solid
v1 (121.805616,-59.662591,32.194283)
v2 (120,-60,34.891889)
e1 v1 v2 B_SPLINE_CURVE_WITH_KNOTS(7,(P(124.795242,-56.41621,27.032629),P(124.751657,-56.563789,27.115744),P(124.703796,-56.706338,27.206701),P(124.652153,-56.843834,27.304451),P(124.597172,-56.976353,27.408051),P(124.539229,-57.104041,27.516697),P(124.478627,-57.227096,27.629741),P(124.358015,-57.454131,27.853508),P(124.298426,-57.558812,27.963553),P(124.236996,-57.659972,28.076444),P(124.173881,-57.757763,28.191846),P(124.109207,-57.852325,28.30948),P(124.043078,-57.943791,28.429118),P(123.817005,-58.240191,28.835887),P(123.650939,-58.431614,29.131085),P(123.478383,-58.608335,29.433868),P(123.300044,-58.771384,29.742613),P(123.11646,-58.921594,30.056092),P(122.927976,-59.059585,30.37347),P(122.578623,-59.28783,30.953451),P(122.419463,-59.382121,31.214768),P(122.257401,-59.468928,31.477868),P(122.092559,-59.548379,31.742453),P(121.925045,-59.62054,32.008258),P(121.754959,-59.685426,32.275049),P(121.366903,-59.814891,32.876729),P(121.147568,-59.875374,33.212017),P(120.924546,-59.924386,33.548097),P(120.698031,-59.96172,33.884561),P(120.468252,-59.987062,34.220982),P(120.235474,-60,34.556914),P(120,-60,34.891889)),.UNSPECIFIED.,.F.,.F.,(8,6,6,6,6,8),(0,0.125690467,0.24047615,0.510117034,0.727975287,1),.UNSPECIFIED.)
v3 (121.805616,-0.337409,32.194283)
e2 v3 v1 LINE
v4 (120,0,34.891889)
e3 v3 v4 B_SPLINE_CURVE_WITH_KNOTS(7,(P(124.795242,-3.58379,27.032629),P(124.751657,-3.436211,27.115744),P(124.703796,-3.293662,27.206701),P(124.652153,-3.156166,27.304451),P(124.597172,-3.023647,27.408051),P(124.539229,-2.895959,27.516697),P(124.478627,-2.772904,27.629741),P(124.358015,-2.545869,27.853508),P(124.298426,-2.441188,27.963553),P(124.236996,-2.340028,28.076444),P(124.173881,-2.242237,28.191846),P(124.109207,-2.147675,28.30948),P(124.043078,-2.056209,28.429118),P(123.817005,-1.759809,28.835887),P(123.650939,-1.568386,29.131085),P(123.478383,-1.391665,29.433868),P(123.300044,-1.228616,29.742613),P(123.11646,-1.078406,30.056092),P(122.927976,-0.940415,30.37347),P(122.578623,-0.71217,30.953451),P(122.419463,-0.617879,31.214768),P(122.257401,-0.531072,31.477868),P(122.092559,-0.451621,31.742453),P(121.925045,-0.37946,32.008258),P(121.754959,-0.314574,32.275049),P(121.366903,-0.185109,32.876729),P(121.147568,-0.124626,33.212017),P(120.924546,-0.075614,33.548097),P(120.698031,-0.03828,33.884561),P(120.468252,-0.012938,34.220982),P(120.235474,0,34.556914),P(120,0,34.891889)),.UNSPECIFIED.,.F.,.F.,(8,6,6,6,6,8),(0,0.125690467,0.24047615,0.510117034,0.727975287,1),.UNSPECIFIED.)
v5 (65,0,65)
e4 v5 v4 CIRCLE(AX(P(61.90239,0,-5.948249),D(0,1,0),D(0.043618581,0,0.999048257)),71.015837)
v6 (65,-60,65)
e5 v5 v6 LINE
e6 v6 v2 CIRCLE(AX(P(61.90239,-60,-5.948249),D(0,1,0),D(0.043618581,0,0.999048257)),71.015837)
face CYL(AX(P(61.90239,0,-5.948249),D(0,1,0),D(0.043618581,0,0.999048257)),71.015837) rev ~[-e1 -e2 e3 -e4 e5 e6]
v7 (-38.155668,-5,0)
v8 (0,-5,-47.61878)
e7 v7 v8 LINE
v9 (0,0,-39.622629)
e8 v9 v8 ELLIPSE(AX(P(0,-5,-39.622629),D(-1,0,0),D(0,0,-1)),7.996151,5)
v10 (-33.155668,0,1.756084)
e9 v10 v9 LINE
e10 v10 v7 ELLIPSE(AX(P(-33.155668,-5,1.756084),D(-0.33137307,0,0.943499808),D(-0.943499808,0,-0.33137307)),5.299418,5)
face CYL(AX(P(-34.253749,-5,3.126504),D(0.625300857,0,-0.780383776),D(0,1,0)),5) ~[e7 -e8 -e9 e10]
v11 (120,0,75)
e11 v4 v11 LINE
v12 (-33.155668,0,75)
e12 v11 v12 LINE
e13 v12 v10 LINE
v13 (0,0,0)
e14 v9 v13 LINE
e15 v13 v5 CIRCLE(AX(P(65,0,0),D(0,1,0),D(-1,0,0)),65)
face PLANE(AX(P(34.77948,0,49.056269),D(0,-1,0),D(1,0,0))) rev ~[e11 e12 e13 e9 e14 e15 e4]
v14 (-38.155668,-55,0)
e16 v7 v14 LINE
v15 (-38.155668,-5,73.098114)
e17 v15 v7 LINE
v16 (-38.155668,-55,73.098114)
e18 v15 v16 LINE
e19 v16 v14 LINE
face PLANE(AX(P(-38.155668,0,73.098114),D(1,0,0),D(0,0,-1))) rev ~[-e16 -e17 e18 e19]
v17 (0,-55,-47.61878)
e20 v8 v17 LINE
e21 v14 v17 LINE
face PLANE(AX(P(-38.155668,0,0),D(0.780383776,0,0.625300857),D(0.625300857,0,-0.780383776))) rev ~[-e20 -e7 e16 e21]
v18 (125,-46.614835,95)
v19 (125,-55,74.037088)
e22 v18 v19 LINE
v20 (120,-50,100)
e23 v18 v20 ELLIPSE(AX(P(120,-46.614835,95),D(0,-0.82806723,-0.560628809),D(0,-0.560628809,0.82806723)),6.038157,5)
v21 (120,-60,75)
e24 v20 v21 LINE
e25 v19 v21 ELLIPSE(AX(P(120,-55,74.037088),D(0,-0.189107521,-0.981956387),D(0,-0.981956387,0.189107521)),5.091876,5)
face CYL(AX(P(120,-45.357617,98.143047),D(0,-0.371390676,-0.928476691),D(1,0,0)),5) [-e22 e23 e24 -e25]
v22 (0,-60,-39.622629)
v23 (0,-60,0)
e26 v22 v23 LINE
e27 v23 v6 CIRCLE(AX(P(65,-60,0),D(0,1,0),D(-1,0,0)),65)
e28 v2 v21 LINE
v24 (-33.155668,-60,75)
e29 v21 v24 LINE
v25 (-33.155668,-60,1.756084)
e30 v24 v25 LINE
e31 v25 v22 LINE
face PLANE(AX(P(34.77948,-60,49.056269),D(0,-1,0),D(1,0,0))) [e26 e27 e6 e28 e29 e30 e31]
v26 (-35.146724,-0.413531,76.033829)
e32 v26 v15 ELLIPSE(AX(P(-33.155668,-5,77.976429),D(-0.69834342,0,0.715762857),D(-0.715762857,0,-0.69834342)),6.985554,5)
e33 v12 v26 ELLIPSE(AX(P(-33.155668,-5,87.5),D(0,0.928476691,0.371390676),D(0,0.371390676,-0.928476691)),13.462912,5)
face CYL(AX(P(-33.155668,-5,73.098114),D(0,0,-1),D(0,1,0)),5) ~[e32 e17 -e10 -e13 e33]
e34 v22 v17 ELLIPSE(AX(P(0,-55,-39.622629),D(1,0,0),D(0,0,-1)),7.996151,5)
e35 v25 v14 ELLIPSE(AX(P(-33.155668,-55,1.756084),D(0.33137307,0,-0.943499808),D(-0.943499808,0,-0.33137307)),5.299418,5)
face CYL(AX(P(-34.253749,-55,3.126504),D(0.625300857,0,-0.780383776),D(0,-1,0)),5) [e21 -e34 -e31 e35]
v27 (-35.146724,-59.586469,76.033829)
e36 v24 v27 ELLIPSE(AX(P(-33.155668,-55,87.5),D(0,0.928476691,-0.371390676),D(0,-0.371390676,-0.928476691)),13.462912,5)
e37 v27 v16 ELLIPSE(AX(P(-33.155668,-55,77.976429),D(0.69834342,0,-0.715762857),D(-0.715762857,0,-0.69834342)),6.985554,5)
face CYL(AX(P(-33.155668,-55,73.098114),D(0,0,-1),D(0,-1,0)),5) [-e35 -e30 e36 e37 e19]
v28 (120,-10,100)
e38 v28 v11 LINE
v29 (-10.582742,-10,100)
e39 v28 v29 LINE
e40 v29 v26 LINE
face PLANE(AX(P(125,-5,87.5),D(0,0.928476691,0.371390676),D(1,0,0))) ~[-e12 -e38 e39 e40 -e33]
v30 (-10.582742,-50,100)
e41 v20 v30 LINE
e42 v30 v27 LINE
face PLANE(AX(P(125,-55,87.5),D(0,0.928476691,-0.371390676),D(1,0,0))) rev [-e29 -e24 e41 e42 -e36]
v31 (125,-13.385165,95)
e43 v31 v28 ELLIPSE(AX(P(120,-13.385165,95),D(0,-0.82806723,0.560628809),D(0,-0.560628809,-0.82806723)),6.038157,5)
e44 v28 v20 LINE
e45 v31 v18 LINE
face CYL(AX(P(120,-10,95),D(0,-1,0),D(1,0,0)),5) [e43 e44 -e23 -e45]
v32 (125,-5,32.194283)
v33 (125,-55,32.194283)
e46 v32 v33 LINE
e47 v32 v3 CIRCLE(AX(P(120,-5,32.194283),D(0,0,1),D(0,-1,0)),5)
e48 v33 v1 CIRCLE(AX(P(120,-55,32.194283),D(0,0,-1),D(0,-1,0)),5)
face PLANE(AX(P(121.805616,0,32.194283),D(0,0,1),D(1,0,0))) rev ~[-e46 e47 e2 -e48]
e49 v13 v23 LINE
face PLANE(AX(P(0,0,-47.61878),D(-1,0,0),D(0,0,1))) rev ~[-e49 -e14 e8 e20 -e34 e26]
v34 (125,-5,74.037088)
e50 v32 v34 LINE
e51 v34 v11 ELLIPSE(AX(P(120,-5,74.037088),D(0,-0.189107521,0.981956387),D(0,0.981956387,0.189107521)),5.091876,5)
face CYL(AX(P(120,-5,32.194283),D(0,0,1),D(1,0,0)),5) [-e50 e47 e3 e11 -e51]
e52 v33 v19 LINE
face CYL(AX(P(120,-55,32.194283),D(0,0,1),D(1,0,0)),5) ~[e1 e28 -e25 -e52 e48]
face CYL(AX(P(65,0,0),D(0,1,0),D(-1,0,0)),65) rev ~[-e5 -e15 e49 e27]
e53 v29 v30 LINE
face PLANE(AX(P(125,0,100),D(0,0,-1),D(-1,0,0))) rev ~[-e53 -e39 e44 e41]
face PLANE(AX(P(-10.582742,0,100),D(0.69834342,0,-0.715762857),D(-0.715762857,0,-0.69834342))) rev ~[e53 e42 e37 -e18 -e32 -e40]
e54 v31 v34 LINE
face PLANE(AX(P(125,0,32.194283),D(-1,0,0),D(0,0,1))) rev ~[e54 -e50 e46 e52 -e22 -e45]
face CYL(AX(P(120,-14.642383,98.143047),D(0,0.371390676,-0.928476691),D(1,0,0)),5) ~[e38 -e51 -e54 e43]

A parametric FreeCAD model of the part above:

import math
import FreeCAD as App
import Part
import Sketcher


def edges_at(feature, points):
    """Names of the edges that pass closest to the given points."""
    edges = feature.Shape.Edges
    near = lambda p: min(range(len(edges)), key=lambda i: edges[i].distToShape(Part.Vertex(*p))[0])
    return sorted({f"Edge{near(p) + 1}" for p in points})

doc = App.newDocument("Part")
params = doc.addObject("Spreadsheet::Sheet", "Params")
for row, (alias, value) in enumerate([
    ("sketch1_radius", "65 mm"),
    ("pad1_length", "60 mm"),
    ("chamfer_size", "10 mm"),
    ("chamfer_size2", "25 mm"),
    ("fillet_radius", "5 mm"),
], start=1):
    params.set(f"A{row}", alias)
    params.set(f"B{row}", "=" + value)
    params.setAlias(f"B{row}", alias)

body = doc.addObject("PartDesign::Body", "Body")

# Sketch on XZ plane
sketch1 = body.newObject("Sketcher::SketchObject", "Sketch")
sketch1.AttachmentSupport = (doc.getObject("XZ_Plane"), [""])
sketch1.MapMode = "FlatFace"
sketch1.addGeometry(Part.LineSegment(App.Vector(125, 32.2, 0), App.Vector(125, 100, 0)), False)
sketch1.addGeometry(Part.LineSegment(App.Vector(125, 100, 0), App.Vector(-10.6, 100, 0)), False)
sketch1.addGeometry(Part.LineSegment(App.Vector(-10.6, 100, 0), App.Vector(-38.2, 73.1, 0)), False)
sketch1.addGeometry(Part.LineSegment(App.Vector(-38.2, 73.1, 0), App.Vector(-38.2, 0, 0)), False)
sketch1.addGeometry(Part.LineSegment(App.Vector(-38.2, 0, 0), App.Vector(0, -47.6, 0)), False)
sketch1.addGeometry(Part.LineSegment(App.Vector(0, -47.6, 0), App.Vector(0, 0, 0)), False)
sketch1.addGeometry(Part.ArcOfCircle(Part.Circle(App.Vector(65, 0, 0), App.Vector(0, 0, 1), 65), math.radians(90), math.radians(180)), False)
sketch1.addGeometry(Part.ArcOfCircle(Part.Circle(App.Vector(61.9, -5.9, 0), App.Vector(0, 0, 1), 71), math.radians(32), math.radians(88)), False)
sketch1.addGeometry(Part.LineSegment(App.Vector(121.8, 32.2, 0), App.Vector(125, 32.2, 0)), False)
sketch1.addConstraint(Sketcher.Constraint("Coincident", 0, 2, 1, 1))
sketch1.addConstraint(Sketcher.Constraint("Coincident", 1, 2, 2, 1))
sketch1.addConstraint(Sketcher.Constraint("Coincident", 2, 2, 3, 1))
sketch1.addConstraint(Sketcher.Constraint("Coincident", 3, 2, 4, 1))
sketch1.addConstraint(Sketcher.Constraint("Coincident", 4, 2, 5, 1))
sketch1.addConstraint(Sketcher.Constraint("Tangent", 5, 2, 6, 2))
sketch1.addConstraint(Sketcher.Constraint("Coincident", 6, 1, 7, 2))
sketch1.addConstraint(Sketcher.Constraint("Coincident", 7, 1, 8, 1))
sketch1.addConstraint(Sketcher.Constraint("Coincident", 8, 2, 0, 1))
sketch1.addConstraint(Sketcher.Constraint("Vertical", 0))
sketch1.addConstraint(Sketcher.Constraint("Horizontal", 1))
sketch1.addConstraint(Sketcher.Constraint("Vertical", 3))
sketch1.addConstraint(Sketcher.Constraint("Vertical", 5))
sketch1.addConstraint(Sketcher.Constraint("Horizontal", 8))
sketch1.addConstraint(Sketcher.Constraint("Coincident", 5, 2, -1, 1))
sketch1.addConstraint(Sketcher.Constraint("PointOnObject", 3, 2, -1))
sketch1.addConstraint(Sketcher.Constraint("Radius", 6, 65.0))
sketch1.addConstraint(Sketcher.Constraint("DistanceX", -1, 1, 0, 2, 125.0))
sketch1.addConstraint(Sketcher.Constraint("DistanceY", -1, 1, 0, 2, 100.0))
sketch1.addConstraint(Sketcher.Constraint("DistanceX", -1, 1, 6, 1, 65.0))
sketch1.addConstraint(Sketcher.Constraint("Radius", 7, 71.015837))
sketch1.addConstraint(Sketcher.Constraint("DistanceY", 5, 1, 5, 2, 47.61878))
sketch1.addConstraint(Sketcher.Constraint("Distance", 2, 38.522431))
sketch1.addConstraint(Sketcher.Constraint("DistanceX", 1, 2, 1, 1, 135.582742))
sketch1.addConstraint(Sketcher.Constraint("DistanceX", 8, 1, 8, 2, 3.194384))
sketch1.addConstraint(Sketcher.Constraint("DistanceY", 0, 1, 0, 2, 67.805717))
sketch1.addConstraint(Sketcher.Constraint("DistanceY", 3, 2, 3, 1, 73.098114))
sketch1.setExpression("Constraints[16]", "Params.sketch1_radius")
pad1 = body.newObject("PartDesign::Pad", "Pad")
pad1.Profile = sketch1
pad1.setExpression("Length", "Params.pad1_length")
doc.recompute()

chamfer = body.newObject("PartDesign::Chamfer", "Chamfer")
chamfer.Base = (pad1, edges_at(pad1, [(57.209, -60, 100), (57.209, 0, 100)]))
chamfer.ChamferType = "Two distances"
chamfer.setExpression("Size", "Params.chamfer_size")
chamfer.setExpression("Size2", "Params.chamfer_size2")
doc.recompute()

fillet = body.newObject("PartDesign::Fillet", "Fillet")
fillet.Base = (chamfer, edges_at(chamfer, [
    (125, -30, 100),
    (125, -60, 53.597),
    (125, 0, 53.597),
    (-38.156, -60, 36.549),
    (-38.156, 0, 36.549),
    (-19.078, 0, -23.809),
    (-19.078, -60, -23.809),
    (125, -5, 87.5),
    (125, -55, 87.5),
]))
fillet.setExpression("Radius", "Params.fillet_radius")

doc.recompute()
